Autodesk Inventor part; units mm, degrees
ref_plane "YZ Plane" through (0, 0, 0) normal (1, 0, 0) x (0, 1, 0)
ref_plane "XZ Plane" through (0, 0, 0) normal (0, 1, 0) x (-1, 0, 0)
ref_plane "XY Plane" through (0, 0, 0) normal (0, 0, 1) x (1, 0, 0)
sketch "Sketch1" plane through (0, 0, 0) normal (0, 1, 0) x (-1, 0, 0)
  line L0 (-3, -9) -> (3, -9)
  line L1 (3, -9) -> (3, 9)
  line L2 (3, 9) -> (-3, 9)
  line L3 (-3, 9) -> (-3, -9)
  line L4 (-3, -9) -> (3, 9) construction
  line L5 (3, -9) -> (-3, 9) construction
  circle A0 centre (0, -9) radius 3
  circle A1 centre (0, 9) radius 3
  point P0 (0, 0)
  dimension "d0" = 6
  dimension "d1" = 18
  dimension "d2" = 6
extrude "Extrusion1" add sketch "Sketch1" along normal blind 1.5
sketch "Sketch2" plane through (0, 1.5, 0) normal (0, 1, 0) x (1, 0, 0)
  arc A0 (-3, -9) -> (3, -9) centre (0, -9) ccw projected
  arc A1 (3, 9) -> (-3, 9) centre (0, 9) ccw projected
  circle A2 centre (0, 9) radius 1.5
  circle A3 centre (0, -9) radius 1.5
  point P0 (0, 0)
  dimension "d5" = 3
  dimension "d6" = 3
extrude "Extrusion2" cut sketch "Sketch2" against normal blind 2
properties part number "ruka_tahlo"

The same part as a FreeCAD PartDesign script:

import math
import FreeCAD as App
import Part
import Sketcher
from FreeCAD import Vector
Q = App.Units.Quantity

doc = App.newDocument("Part")
body = doc.addObject("PartDesign::Body", "Body")

# Sketch on XZ plane
sketch1 = body.newObject("Sketcher::SketchObject", "Sketch")
sketch1.AttachmentSupport = (doc.getObject("XZ_Plane"), [""])
sketch1.MapMode = "FlatFace"
sketch1.addGeometry([
    Part.LineSegment(Vector(3, 9, 0), Vector(3, -9, 0)),
    Part.ArcOfCircle(Part.Circle(Vector(0, -9, 0), Vector(0, 0, 1), 3), math.radians(180), math.radians(360)),
    Part.LineSegment(Vector(-3, -9, 0), Vector(-3, 9, 0)),
    Part.ArcOfCircle(Part.Circle(Vector(0, 9, 0), Vector(0, 0, 1), 3), math.radians(0), math.radians(180)),
], False)
sketch1.addConstraint([
    Sketcher.Constraint("Tangent", 0, 2, 1, 2),
    Sketcher.Constraint("Tangent", 1, 1, 2, 1),
    Sketcher.Constraint("Tangent", 2, 2, 3, 2),
    Sketcher.Constraint("Tangent", 3, 1, 0, 1),
    Sketcher.Constraint("Vertical", 0),
    Sketcher.Constraint("Vertical", 2),
    Sketcher.Constraint("Symmetric", 1, 3, 3, 3, -1, 1),
    Sketcher.Constraint("Radius", 1, Q("3 mm")),
    Sketcher.Constraint("DistanceY", 0, 2, 0, 1, Q("18 mm")),
])
pad1 = body.newObject("PartDesign::Pad", "Pad")
pad1.Profile = sketch1
pad1.Length = 1.5
pad1.Reversed = True

# Sketch on XZ plane
sketch2 = body.newObject("Sketcher::SketchObject", "Sketch001")
sketch2.AttachmentSupport = (doc.getObject("XZ_Plane"), [""])
sketch2.MapMode = "FlatFace"
sketch2.AttachmentOffset = App.Placement(Vector(0, 0, -1.5), App.Rotation())
sketch2.addGeometry([
    Part.Circle(Vector(0, -9, 0), Vector(0, 0, 1), 1.5),
    Part.Circle(Vector(0, 9, 0), Vector(0, 0, 1), 1.5),
], False)
sketch2.addConstraint([
    Sketcher.Constraint("Equal", 0, 1),
    Sketcher.Constraint("Symmetric", 0, 3, 1, 3, -1, 1),
    Sketcher.Constraint("PointOnObject", 0, 3, -2),
    Sketcher.Constraint("Diameter", 0, Q("3 mm")),
    Sketcher.Constraint("DistanceY", 0, 3, -1, 1, Q("9 mm")),
])
pocket1 = body.newObject("PartDesign::Pocket", "Pocket")
pocket1.Profile = sketch2
pocket1.Length = 2
pocket1.Reversed = True

doc.recompute()
